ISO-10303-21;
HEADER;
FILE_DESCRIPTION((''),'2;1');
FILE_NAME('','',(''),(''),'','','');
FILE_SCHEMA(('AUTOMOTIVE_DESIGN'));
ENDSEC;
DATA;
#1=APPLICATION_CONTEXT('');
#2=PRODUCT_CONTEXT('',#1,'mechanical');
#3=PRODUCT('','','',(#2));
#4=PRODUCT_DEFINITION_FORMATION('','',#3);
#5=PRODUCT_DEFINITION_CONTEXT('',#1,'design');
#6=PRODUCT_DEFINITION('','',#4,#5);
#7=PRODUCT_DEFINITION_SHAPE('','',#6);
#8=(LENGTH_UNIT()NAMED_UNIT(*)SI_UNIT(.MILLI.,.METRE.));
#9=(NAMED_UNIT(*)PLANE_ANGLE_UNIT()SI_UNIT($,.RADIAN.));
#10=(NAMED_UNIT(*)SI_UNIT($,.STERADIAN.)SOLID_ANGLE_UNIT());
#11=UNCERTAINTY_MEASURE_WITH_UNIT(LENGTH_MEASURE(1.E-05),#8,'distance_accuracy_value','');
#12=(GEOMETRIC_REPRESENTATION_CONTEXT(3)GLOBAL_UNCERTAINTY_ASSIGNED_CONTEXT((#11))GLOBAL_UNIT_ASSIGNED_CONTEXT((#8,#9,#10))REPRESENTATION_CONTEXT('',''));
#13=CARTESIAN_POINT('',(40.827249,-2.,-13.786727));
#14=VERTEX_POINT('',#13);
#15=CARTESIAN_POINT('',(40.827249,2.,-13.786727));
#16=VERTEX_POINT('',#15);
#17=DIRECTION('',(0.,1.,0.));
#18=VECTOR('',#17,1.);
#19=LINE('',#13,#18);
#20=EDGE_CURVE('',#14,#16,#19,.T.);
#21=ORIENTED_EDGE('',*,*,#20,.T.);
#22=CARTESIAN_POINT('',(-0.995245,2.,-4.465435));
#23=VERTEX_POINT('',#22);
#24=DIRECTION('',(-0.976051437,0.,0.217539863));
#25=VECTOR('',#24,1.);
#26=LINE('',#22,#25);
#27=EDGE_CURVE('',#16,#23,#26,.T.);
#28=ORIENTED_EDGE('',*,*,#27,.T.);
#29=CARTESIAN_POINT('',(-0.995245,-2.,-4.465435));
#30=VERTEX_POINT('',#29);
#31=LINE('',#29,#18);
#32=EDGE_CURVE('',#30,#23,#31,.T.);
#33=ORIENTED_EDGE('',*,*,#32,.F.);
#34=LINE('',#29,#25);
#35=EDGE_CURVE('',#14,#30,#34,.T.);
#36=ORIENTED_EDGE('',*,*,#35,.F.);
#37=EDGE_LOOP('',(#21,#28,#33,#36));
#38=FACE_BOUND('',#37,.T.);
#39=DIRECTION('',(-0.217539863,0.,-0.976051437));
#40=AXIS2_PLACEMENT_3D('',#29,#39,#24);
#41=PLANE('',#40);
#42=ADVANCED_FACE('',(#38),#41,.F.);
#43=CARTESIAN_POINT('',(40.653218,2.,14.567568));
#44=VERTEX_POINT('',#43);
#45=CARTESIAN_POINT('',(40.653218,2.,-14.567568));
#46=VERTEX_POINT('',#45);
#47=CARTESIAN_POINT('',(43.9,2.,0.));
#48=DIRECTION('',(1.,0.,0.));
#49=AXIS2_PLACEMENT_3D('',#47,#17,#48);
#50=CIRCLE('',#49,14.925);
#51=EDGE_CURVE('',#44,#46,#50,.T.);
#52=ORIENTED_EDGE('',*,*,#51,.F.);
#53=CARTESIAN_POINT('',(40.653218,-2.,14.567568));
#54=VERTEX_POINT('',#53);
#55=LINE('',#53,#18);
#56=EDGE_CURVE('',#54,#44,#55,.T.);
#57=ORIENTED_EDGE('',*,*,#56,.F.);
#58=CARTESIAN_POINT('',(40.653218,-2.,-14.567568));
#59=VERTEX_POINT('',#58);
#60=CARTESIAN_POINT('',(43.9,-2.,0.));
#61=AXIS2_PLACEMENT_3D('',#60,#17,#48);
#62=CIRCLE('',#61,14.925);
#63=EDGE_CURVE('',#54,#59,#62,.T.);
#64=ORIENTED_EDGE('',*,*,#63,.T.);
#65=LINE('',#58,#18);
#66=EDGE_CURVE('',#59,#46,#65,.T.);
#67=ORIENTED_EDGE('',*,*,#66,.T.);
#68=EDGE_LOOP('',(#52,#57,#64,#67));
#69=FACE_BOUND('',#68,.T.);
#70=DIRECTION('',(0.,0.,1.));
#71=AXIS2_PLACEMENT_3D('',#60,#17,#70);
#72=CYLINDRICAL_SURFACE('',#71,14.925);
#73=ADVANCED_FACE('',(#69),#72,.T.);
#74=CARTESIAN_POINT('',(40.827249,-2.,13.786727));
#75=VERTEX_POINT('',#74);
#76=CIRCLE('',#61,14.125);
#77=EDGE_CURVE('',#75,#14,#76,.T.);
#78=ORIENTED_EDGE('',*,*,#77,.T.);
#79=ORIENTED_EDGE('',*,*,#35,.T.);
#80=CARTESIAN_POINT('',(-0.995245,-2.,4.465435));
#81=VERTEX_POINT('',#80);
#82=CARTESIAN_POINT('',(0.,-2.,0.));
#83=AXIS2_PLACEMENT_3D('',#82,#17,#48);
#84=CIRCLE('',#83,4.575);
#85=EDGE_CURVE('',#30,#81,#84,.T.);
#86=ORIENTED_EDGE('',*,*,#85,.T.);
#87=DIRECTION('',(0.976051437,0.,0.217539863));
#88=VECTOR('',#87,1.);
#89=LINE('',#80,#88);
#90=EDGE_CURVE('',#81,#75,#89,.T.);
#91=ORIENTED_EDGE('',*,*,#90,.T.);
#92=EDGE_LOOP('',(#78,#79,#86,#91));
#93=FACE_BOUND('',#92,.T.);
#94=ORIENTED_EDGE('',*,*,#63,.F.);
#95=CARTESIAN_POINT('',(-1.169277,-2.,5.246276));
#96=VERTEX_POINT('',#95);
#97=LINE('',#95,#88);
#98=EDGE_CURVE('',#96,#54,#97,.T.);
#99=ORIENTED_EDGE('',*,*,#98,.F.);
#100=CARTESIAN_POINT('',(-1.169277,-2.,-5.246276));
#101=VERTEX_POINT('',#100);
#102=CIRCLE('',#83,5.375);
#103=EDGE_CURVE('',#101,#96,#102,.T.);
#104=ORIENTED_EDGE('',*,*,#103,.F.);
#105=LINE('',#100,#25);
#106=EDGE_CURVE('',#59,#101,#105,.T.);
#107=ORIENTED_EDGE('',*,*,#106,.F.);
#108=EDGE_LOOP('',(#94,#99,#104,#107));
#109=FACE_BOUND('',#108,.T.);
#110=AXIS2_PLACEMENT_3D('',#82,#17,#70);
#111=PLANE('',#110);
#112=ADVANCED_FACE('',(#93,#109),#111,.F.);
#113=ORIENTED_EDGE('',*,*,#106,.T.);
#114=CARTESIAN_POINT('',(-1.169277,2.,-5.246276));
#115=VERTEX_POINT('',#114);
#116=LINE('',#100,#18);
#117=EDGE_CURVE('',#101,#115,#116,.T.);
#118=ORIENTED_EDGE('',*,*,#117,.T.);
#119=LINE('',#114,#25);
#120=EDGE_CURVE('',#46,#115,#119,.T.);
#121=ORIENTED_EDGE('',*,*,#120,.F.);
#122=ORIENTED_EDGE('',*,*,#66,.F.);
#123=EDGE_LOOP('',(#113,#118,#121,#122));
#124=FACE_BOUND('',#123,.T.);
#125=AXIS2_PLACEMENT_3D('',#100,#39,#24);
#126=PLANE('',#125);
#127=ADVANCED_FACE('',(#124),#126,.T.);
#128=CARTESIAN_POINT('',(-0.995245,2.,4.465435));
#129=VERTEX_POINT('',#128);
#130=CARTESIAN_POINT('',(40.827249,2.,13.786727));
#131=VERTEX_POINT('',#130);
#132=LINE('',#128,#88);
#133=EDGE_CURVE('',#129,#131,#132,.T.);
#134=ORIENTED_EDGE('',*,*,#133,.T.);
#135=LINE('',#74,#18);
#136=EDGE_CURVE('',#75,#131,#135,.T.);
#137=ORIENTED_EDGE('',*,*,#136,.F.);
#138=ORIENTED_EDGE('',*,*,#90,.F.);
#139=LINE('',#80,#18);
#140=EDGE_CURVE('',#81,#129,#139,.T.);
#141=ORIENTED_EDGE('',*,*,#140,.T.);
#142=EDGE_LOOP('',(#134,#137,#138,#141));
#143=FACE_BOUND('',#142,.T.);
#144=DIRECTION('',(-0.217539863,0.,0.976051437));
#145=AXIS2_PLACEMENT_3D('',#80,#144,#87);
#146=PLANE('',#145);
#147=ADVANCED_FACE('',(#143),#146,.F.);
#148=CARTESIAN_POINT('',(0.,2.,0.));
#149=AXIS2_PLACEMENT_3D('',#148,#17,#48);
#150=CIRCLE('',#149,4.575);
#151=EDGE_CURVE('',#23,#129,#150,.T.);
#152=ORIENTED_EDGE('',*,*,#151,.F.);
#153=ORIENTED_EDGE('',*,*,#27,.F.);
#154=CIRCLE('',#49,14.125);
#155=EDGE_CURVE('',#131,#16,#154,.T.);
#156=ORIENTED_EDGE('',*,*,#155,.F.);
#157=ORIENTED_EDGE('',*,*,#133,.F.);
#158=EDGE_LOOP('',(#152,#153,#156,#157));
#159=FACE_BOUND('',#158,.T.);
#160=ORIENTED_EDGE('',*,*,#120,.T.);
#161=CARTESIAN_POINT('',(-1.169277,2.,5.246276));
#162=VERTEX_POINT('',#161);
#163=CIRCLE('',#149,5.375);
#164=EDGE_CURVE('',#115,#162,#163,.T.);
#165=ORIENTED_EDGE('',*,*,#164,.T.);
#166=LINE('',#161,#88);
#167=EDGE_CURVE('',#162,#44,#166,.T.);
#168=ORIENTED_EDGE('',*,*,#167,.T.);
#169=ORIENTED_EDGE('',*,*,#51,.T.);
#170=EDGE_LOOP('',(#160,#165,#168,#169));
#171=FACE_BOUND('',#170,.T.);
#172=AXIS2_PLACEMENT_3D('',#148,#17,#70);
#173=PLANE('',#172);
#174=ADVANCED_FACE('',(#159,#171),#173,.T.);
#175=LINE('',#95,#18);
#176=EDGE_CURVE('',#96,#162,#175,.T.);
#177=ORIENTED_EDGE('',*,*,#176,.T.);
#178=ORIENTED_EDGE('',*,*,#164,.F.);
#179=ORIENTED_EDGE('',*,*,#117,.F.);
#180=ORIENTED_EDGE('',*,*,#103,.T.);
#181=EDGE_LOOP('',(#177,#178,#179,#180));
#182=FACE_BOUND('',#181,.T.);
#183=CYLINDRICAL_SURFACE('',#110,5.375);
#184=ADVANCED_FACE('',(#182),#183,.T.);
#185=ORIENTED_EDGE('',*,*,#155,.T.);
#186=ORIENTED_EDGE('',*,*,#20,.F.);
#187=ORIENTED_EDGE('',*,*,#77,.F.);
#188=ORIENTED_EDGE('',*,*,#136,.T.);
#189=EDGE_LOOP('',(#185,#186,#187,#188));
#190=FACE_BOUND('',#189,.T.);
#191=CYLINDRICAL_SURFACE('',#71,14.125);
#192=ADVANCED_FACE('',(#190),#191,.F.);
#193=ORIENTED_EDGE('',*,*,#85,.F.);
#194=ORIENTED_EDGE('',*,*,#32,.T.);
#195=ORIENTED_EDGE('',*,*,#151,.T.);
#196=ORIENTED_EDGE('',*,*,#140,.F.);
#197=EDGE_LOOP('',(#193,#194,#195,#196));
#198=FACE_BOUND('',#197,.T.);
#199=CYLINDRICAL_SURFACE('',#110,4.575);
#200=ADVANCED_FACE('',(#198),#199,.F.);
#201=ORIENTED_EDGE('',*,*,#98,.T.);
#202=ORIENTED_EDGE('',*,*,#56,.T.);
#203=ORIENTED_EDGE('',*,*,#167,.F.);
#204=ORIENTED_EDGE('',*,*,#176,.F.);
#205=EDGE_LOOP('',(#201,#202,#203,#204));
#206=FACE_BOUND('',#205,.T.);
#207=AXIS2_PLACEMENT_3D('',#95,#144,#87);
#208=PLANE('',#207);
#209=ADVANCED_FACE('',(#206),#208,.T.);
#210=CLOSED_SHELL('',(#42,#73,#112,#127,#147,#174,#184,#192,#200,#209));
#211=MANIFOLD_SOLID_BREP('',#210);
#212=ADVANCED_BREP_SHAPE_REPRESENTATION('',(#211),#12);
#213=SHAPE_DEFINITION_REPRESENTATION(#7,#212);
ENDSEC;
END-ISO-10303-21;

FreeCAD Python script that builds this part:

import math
import FreeCAD as App
import Part
import Sketcher
Q = App.Units.Quantity

doc = App.newDocument("Part")
body = doc.addObject("PartDesign::Body", "Body")

# Sketch on XZ plane
sketch1 = body.newObject("Sketcher::SketchObject", "Sketch")
sketch1.AttachmentSupport = (doc.getObject("XZ_Plane"), [""])
sketch1.MapMode = "FlatFace"
sketch1.addGeometry([
    Part.LineSegment(App.Vector(-1.169277, 5.246276, 0), App.Vector(40.653218, 14.567568, 0)),  # 0
    Part.ArcOfCircle(Part.Circle(App.Vector(43.9, 0, 0), App.Vector(0, 0, 1), 14.925), math.radians(-102.564578), math.radians(102.564578)),  # 1
    Part.LineSegment(App.Vector(40.653218, -14.567568, 0), App.Vector(-1.169277, -5.246276, 0)),  # 2
    Part.ArcOfCircle(Part.Circle(App.Vector(0, 0, 0), App.Vector(0, 0, 1), 5.375), math.radians(102.564578), math.radians(257.435422)),  # 3
    Part.LineSegment(App.Vector(40.827249, 13.786727, 0), App.Vector(-0.995245, 4.465435, 0)),  # 4
    Part.ArcOfCircle(Part.Circle(App.Vector(0, 0, 0), App.Vector(0, 0, 1), 4.575), math.radians(102.564578), math.radians(257.435422)),  # 5
    Part.LineSegment(App.Vector(-0.995245, -4.465435, 0), App.Vector(40.827249, -13.786727, 0)),  # 6
    Part.ArcOfCircle(Part.Circle(App.Vector(43.9, 0, 0), App.Vector(0, 0, 1), 14.125), math.radians(-102.564578), math.radians(102.564578)),  # 7
], False)
sketch1.addConstraint([
    Sketcher.Constraint("Tangent", 0, 2, 1, 2),
    Sketcher.Constraint("Tangent", 1, 1, 2, 1),
    Sketcher.Constraint("Tangent", 2, 2, 3, 2),
    Sketcher.Constraint("Tangent", 3, 1, 0, 1),
    Sketcher.Constraint("Tangent", 4, 2, 5, 1),
    Sketcher.Constraint("Tangent", 5, 2, 6, 1),
    Sketcher.Constraint("Tangent", 6, 2, 7, 1),
    Sketcher.Constraint("Tangent", 7, 2, 4, 1),
    Sketcher.Constraint("Coincident", 3, 3, -1, 1),
    Sketcher.Constraint("Coincident", 5, 3, -1, 1),
    Sketcher.Constraint("Coincident", 7, 3, 1, 3),
    Sketcher.Constraint("PointOnObject", 1, 3, -1),
    Sketcher.Constraint("Parallel", 0, 4),
    Sketcher.Constraint("Radius", 1, Q("14.925 mm")),
    Sketcher.Constraint("Radius", 3, Q("5.375 mm")),
    Sketcher.Constraint("Radius", 5, Q("4.575 mm")),
    Sketcher.Constraint("DistanceX", -1, 1, 1, 3, Q("43.9 mm")),
])
pad1 = body.newObject("PartDesign::Pad", "Pad")
pad1.Profile = sketch1
pad1.Type = "TwoLengths"
pad1.Length = 2
pad1.Length2 = 2
pad1.Reversed = True

doc.recompute()
